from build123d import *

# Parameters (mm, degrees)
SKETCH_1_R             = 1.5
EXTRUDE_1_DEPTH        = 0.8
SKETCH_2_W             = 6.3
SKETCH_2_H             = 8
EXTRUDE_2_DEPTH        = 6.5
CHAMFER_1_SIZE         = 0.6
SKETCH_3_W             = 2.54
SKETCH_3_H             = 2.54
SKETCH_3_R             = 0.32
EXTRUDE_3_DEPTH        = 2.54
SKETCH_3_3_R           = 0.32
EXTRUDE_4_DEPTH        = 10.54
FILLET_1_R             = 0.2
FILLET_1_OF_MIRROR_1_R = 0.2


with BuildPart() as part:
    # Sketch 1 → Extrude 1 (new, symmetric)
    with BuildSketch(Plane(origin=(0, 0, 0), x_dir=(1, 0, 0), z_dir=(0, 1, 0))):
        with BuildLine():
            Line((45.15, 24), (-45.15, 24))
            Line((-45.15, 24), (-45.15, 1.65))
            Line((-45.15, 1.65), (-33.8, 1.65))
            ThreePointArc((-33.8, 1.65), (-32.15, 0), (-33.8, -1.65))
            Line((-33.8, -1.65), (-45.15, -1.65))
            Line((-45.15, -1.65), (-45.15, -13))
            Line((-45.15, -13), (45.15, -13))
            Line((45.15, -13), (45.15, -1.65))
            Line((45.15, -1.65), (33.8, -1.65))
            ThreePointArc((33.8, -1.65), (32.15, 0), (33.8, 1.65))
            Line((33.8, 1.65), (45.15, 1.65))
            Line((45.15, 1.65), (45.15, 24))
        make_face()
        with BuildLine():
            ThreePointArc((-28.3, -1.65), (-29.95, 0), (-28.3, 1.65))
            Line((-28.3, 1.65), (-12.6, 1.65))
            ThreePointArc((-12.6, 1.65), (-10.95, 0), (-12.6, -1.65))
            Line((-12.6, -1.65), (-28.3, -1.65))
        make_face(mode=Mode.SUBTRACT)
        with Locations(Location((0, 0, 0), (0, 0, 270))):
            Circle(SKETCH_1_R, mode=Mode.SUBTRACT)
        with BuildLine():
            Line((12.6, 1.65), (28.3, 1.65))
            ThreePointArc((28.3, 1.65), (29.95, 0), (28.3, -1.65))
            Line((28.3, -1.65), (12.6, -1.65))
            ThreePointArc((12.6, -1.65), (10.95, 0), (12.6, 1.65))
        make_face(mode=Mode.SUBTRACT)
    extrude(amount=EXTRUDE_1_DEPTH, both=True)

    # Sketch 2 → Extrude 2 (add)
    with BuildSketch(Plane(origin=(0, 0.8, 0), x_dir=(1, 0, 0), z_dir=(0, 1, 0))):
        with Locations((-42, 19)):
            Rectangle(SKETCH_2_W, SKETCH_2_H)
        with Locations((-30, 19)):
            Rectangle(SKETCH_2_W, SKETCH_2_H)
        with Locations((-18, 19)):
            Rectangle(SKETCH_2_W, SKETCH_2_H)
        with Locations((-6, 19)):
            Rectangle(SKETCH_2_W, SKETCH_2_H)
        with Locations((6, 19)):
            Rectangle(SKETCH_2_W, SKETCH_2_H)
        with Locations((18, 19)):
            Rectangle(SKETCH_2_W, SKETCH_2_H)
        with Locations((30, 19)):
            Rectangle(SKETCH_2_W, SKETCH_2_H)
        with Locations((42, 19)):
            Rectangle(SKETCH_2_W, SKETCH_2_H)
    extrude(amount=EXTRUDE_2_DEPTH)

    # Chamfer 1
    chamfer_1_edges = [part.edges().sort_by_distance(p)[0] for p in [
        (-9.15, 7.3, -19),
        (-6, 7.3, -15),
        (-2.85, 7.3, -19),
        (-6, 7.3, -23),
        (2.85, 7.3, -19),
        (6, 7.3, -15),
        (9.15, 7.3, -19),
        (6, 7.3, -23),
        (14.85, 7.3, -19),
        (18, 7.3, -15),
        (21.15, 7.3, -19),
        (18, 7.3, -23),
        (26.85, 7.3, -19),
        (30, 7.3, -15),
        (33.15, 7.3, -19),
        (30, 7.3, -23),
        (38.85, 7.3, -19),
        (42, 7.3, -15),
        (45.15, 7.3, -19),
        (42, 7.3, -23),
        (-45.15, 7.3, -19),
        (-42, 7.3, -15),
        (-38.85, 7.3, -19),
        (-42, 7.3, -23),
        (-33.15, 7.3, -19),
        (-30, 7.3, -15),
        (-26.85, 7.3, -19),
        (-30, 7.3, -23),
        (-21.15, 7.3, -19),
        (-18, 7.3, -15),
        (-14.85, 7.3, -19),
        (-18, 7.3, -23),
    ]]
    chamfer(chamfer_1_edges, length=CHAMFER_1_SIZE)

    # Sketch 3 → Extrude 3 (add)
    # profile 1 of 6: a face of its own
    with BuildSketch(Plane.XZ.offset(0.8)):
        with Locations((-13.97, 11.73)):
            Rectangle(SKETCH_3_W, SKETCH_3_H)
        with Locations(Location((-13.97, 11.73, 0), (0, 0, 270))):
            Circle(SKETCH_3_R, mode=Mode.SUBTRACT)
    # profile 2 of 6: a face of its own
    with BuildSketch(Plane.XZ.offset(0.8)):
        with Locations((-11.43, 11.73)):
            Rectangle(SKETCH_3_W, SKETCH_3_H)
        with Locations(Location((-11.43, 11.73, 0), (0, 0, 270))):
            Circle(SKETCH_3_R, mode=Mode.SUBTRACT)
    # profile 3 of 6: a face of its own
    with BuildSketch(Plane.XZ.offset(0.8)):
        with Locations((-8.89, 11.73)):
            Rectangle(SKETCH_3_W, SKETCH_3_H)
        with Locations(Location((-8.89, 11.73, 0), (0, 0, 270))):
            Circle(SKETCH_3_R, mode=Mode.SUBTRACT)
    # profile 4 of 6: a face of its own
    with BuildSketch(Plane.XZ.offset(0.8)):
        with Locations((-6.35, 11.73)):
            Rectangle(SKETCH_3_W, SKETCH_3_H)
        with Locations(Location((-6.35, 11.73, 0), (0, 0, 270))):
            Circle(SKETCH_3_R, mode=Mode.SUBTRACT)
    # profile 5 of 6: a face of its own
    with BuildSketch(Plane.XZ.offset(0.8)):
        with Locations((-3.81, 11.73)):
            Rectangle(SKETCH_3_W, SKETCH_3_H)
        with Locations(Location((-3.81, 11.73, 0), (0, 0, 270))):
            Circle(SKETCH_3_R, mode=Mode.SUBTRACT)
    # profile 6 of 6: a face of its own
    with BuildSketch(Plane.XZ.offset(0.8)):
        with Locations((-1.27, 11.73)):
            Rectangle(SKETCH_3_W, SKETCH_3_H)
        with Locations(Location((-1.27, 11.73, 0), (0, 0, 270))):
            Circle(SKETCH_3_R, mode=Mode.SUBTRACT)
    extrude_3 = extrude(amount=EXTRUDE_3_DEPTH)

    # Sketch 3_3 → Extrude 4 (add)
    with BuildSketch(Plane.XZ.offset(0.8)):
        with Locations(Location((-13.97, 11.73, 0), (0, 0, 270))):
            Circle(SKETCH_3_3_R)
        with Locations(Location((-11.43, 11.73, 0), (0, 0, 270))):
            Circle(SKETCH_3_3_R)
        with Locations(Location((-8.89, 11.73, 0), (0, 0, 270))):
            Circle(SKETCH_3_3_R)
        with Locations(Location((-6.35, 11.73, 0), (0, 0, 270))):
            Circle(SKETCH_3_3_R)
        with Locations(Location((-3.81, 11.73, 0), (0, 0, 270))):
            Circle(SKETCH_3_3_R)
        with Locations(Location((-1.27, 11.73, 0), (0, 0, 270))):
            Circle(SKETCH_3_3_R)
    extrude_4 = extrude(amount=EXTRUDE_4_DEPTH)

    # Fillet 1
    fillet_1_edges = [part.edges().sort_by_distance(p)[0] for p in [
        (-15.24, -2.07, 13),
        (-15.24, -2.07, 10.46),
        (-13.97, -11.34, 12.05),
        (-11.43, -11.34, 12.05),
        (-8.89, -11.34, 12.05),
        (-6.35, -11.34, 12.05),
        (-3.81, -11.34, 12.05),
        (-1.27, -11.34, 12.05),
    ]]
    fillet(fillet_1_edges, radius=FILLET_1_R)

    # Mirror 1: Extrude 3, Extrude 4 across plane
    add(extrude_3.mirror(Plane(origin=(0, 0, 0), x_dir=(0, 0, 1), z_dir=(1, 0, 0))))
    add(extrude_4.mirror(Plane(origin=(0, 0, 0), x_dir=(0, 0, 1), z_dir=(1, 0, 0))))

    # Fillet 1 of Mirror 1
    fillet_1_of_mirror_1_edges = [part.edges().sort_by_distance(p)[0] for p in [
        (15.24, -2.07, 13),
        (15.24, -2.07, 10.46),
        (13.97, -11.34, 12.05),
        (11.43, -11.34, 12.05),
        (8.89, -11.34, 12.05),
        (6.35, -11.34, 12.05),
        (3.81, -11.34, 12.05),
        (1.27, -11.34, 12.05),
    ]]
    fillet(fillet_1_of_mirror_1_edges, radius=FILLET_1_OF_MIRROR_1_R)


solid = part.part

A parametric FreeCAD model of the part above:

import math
import FreeCAD as App
import Part
import Sketcher

V = App.Vector
Q = App.Units.Quantity


def edges_at(feature, points):
    """Names of the edges that pass closest to the given points."""
    edges = feature.Shape.Edges
    near = lambda p: min(range(len(edges)), key=lambda i: edges[i].distToShape(Part.Vertex(*p))[0])
    return sorted({f"Edge{near(p) + 1}" for p in points})

doc = App.newDocument("Part")
body = doc.addObject("PartDesign::Body", "Body")

sketch1 = body.newObject("Sketcher::SketchObject", "Sketch")
sketch1.AttachmentSupport = (doc.getObject("XZ_Plane"), [""])
sketch1.MapMode = "FlatFace"
sketch1.addGeometry(Part.LineSegment(V(45.15, -24, 0), V(-45.15, -24, 0)), False)
sketch1.addGeometry(Part.LineSegment(V(-45.15, -24, 0), V(-45.15, -1.65, 0)), False)
sketch1.addGeometry(Part.LineSegment(V(-45.15, -1.65, 0), V(-33.8, -1.65, 0)), False)
sketch1.addGeometry(Part.ArcOfCircle(Part.Circle(V(-33.8, 0, 0), V(0, 0, 1), 1.65), math.radians(-90), math.radians(90)), False)
sketch1.addGeometry(Part.LineSegment(V(-33.8, 1.65, 0), V(-45.15, 1.65, 0)), False)
sketch1.addGeometry(Part.LineSegment(V(-45.15, 1.65, 0), V(-45.15, 13, 0)), False)
sketch1.addGeometry(Part.LineSegment(V(-45.15, 13, 0), V(45.15, 13, 0)), False)
sketch1.addGeometry(Part.LineSegment(V(45.15, 13, 0), V(45.15, 1.65, 0)), False)
sketch1.addGeometry(Part.LineSegment(V(45.15, 1.65, 0), V(33.8, 1.65, 0)), False)
sketch1.addGeometry(Part.ArcOfCircle(Part.Circle(V(33.8, 0, 0), V(0, 0, 1), 1.65), math.radians(90), math.radians(270)), False)
sketch1.addGeometry(Part.LineSegment(V(33.8, -1.65, 0), V(45.15, -1.65, 0)), False)
sketch1.addGeometry(Part.LineSegment(V(45.15, -1.65, 0), V(45.15, -24, 0)), False)
sketch1.addGeometry(Part.LineSegment(V(-12.6, 1.65, 0), V(-28.3, 1.65, 0)), False)
sketch1.addGeometry(Part.ArcOfCircle(Part.Circle(V(-28.3, 0, 0), V(0, 0, 1), 1.65), math.radians(90), math.radians(270)), False)
sketch1.addGeometry(Part.LineSegment(V(-28.3, -1.65, 0), V(-12.6, -1.65, 0)), False)
sketch1.addGeometry(Part.ArcOfCircle(Part.Circle(V(-12.6, 0, 0), V(0, 0, 1), 1.65), math.radians(-90), math.radians(90)), False)
sketch1.addGeometry(Part.Circle(V(0, 0, 0), V(0, 0, 1), 1.5), False)
sketch1.addGeometry(Part.ArcOfCircle(Part.Circle(V(12.6, 0, 0), V(0, 0, 1), 1.65), math.radians(90), math.radians(270)), False)
sketch1.addGeometry(Part.LineSegment(V(12.6, -1.65, 0), V(28.3, -1.65, 0)), False)
sketch1.addGeometry(Part.ArcOfCircle(Part.Circle(V(28.3, 0, 0), V(0, 0, 1), 1.65), math.radians(-90), math.radians(90)), False)
sketch1.addGeometry(Part.LineSegment(V(28.3, 1.65, 0), V(12.6, 1.65, 0)), False)
sketch1.addConstraint(Sketcher.Constraint("Coincident", 0, 2, 1, 1))
sketch1.addConstraint(Sketcher.Constraint("Coincident", 1, 2, 2, 1))
sketch1.addConstraint(Sketcher.Constraint("Tangent", 2, 2, 3, 1))
sketch1.addConstraint(Sketcher.Constraint("Tangent", 3, 2, 4, 1))
sketch1.addConstraint(Sketcher.Constraint("Coincident", 4, 2, 5, 1))
sketch1.addConstraint(Sketcher.Constraint("Coincident", 5, 2, 6, 1))
sketch1.addConstraint(Sketcher.Constraint("Coincident", 6, 2, 7, 1))
sketch1.addConstraint(Sketcher.Constraint("Coincident", 7, 2, 8, 1))
sketch1.addConstraint(Sketcher.Constraint("Tangent", 8, 2, 9, 1))
sketch1.addConstraint(Sketcher.Constraint("Tangent", 9, 2, 10, 1))
sketch1.addConstraint(Sketcher.Constraint("Coincident", 10, 2, 11, 1))
sketch1.addConstraint(Sketcher.Constraint("Coincident", 11, 2, 0, 1))
sketch1.addConstraint(Sketcher.Constraint("Tangent", 12, 2, 13, 1))
sketch1.addConstraint(Sketcher.Constraint("Tangent", 13, 2, 14, 1))
sketch1.addConstraint(Sketcher.Constraint("Tangent", 14, 2, 15, 1))
sketch1.addConstraint(Sketcher.Constraint("Tangent", 15, 2, 12, 1))
sketch1.addConstraint(Sketcher.Constraint("Tangent", 17, 2, 18, 1))
sketch1.addConstraint(Sketcher.Constraint("Tangent", 18, 2, 19, 1))
sketch1.addConstraint(Sketcher.Constraint("Tangent", 19, 2, 20, 1))
sketch1.addConstraint(Sketcher.Constraint("Tangent", 20, 2, 17, 1))
sketch1.addConstraint(Sketcher.Constraint("Horizontal", 0))
sketch1.addConstraint(Sketcher.Constraint("Vertical", 1))
sketch1.addConstraint(Sketcher.Constraint("Horizontal", 2))
sketch1.addConstraint(Sketcher.Constraint("Horizontal", 4))
sketch1.addConstraint(Sketcher.Constraint("Vertical", 5))
sketch1.addConstraint(Sketcher.Constraint("Horizontal", 6))
sketch1.addConstraint(Sketcher.Constraint("Vertical", 7))
sketch1.addConstraint(Sketcher.Constraint("Horizontal", 8))
sketch1.addConstraint(Sketcher.Constraint("Horizontal", 10))
sketch1.addConstraint(Sketcher.Constraint("Vertical", 11))
sketch1.addConstraint(Sketcher.Constraint("Horizontal", 12))
sketch1.addConstraint(Sketcher.Constraint("Horizontal", 14))
sketch1.addConstraint(Sketcher.Constraint("Horizontal", 18))
sketch1.addConstraint(Sketcher.Constraint("Horizontal", 20))
sketch1.addConstraint(Sketcher.Constraint("Coincident", 16, 3, -1, 1))
sketch1.addConstraint(Sketcher.Constraint("Equal", 3, 9))
sketch1.addConstraint(Sketcher.Constraint("Equal", 9, 13))
sketch1.addConstraint(Sketcher.Constraint("Equal", 15, 17))
sketch1.addConstraint(Sketcher.Constraint("Symmetric", 3, 3, 9, 3, -1, 1))
sketch1.addConstraint(Sketcher.Constraint("Symmetric", 15, 3, 17, 3, -1, 1))
sketch1.addConstraint(Sketcher.Constraint("Symmetric", 13, 3, 19, 3, -2))
sketch1.addConstraint(Sketcher.Constraint("Symmetric", 4, 2, 7, 2, -2))
sketch1.addConstraint(Sketcher.Constraint("Vertical", 1, 2, 4, 2))
sketch1.addConstraint(Sketcher.Constraint("Vertical", 7, 2, 10, 2))
sketch1.addConstraint(Sketcher.Constraint("Equal", 10, 5))
sketch1.addConstraint(Sketcher.Constraint("Diameter", 16, Q("3 mm")))
sketch1.addConstraint(Sketcher.Constraint("Radius", 3, Q("1.65 mm")))
sketch1.addConstraint(Sketcher.Constraint("DistanceX", 0, 2, 0, 1, Q("90.3 mm")))
sketch1.addConstraint(Sketcher.Constraint("DistanceX", 12, 2, 12, 1, Q("15.7 mm")))
sketch1.addConstraint(Sketcher.Constraint("DistanceY", 0, 2, -1, 1, Q("24 mm")))
sketch1.addConstraint(Sketcher.Constraint("DistanceY", -1, 1, 5, 2, Q("13 mm")))
sketch1.addConstraint(Sketcher.Constraint("DistanceX", 13, 3, -1, 1, Q("28.3 mm")))
pad1 = body.newObject("PartDesign::Pad", "Pad")
pad1.Profile = sketch1
pad1.Length = 1.6
pad1.Midplane = True

sketch2 = body.newObject("Sketcher::SketchObject", "Sketch001")
sketch2.AttachmentSupport = (doc.getObject("XZ_Plane"), [""])
sketch2.MapMode = "FlatFace"
sketch2.AttachmentOffset = App.Placement(V(0, 0, -0.8), App.Rotation())
sketch2.addGeometry(Part.LineSegment(V(-45.15, -23, 0), V(-45.15, -15, 0)), False)
sketch2.addGeometry(Part.LineSegment(V(-45.15, -15, 0), V(-38.85, -15, 0)), False)
sketch2.addGeometry(Part.LineSegment(V(-38.85, -15, 0), V(-38.85, -23, 0)), False)
sketch2.addGeometry(Part.LineSegment(V(-38.85, -23, 0), V(-45.15, -23, 0)), False)
sketch2.addGeometry(Part.LineSegment(V(-33.15, -23, 0), V(-33.15, -15, 0)), False)
sketch2.addGeometry(Part.LineSegment(V(-33.15, -15, 0), V(-26.85, -15, 0)), False)
sketch2.addGeometry(Part.LineSegment(V(-26.85, -15, 0), V(-26.85, -23, 0)), False)
sketch2.addGeometry(Part.LineSegment(V(-26.85, -23, 0), V(-33.15, -23, 0)), False)
sketch2.addGeometry(Part.LineSegment(V(-21.15, -23, 0), V(-21.15, -15, 0)), False)
sketch2.addGeometry(Part.LineSegment(V(-21.15, -15, 0), V(-14.85, -15, 0)), False)
sketch2.addGeometry(Part.LineSegment(V(-14.85, -15, 0), V(-14.85, -23, 0)), False)
sketch2.addGeometry(Part.LineSegment(V(-14.85, -23, 0), V(-21.15, -23, 0)), False)
sketch2.addGeometry(Part.LineSegment(V(-9.15, -23, 0), V(-9.15, -15, 0)), False)
sketch2.addGeometry(Part.LineSegment(V(-9.15, -15, 0), V(-2.85, -15, 0)), False)
sketch2.addGeometry(Part.LineSegment(V(-2.85, -15, 0), V(-2.85, -23, 0)), False)
sketch2.addGeometry(Part.LineSegment(V(-2.85, -23, 0), V(-9.15, -23, 0)), False)
sketch2.addGeometry(Part.LineSegment(V(2.85, -23, 0), V(2.85, -15, 0)), False)
sketch2.addGeometry(Part.LineSegment(V(2.85, -15, 0), V(9.15, -15, 0)), False)
sketch2.addGeometry(Part.LineSegment(V(9.15, -15, 0), V(9.15, -23, 0)), False)
sketch2.addGeometry(Part.LineSegment(V(9.15, -23, 0), V(2.85, -23, 0)), False)
sketch2.addGeometry(Part.LineSegment(V(14.85, -23, 0), V(14.85, -15, 0)), False)
sketch2.addGeometry(Part.LineSegment(V(14.85, -15, 0), V(21.15, -15, 0)), False)
sketch2.addGeometry(Part.LineSegment(V(21.15, -15, 0), V(21.15, -23, 0)), False)
sketch2.addGeometry(Part.LineSegment(V(21.15, -23, 0), V(14.85, -23, 0)), False)
sketch2.addGeometry(Part.LineSegment(V(26.85, -23, 0), V(26.85, -15, 0)), False)
sketch2.addGeometry(Part.LineSegment(V(26.85, -15, 0), V(33.15, -15, 0)), False)
sketch2.addGeometry(Part.LineSegment(V(33.15, -15, 0), V(33.15, -23, 0)), False)
sketch2.addGeometry(Part.LineSegment(V(33.15, -23, 0), V(26.85, -23, 0)), False)
sketch2.addGeometry(Part.LineSegment(V(38.85, -23, 0), V(38.85, -15, 0)), False)
sketch2.addGeometry(Part.LineSegment(V(38.85, -15, 0), V(45.15, -15, 0)), False)
sketch2.addGeometry(Part.LineSegment(V(45.15, -15, 0), V(45.15, -23, 0)), False)
sketch2.addGeometry(Part.LineSegment(V(45.15, -23, 0), V(38.85, -23, 0)), False)
sketch2.addConstraint(Sketcher.Constraint("Coincident", 0, 2, 1, 1))
sketch2.addConstraint(Sketcher.Constraint("Coincident", 1, 2, 2, 1))
sketch2.addConstraint(Sketcher.Constraint("Coincident", 2, 2, 3, 1))
sketch2.addConstraint(Sketcher.Constraint("Coincident", 3, 2, 0, 1))
sketch2.addConstraint(Sketcher.Constraint("Coincident", 4, 2, 5, 1))
sketch2.addConstraint(Sketcher.Constraint("Coincident", 5, 2, 6, 1))
sketch2.addConstraint(Sketcher.Constraint("Coincident", 6, 2, 7, 1))
sketch2.addConstraint(Sketcher.Constraint("Coincident", 7, 2, 4, 1))
sketch2.addConstraint(Sketcher.Constraint("Coincident", 8, 2, 9, 1))
sketch2.addConstraint(Sketcher.Constraint("Coincident", 9, 2, 10, 1))
sketch2.addConstraint(Sketcher.Constraint("Coincident", 10, 2, 11, 1))
sketch2.addConstraint(Sketcher.Constraint("Coincident", 11, 2, 8, 1))
sketch2.addConstraint(Sketcher.Constraint("Coincident", 12, 2, 13, 1))
sketch2.addConstraint(Sketcher.Constraint("Coincident", 13, 2, 14, 1))
sketch2.addConstraint(Sketcher.Constraint("Coincident", 14, 2, 15, 1))
sketch2.addConstraint(Sketcher.Constraint("Coincident", 15, 2, 12, 1))
sketch2.addConstraint(Sketcher.Constraint("Coincident", 16, 2, 17, 1))
sketch2.addConstraint(Sketcher.Constraint("Coincident", 17, 2, 18, 1))
sketch2.addConstraint(Sketcher.Constraint("Coincident", 18, 2, 19, 1))
sketch2.addConstraint(Sketcher.Constraint("Coincident", 19, 2, 16, 1))
sketch2.addConstraint(Sketcher.Constraint("Coincident", 20, 2, 21, 1))
sketch2.addConstraint(Sketcher.Constraint("Coincident", 21, 2, 22, 1))
sketch2.addConstraint(Sketcher.Constraint("Coincident", 22, 2, 23, 1))
sketch2.addConstraint(Sketcher.Constraint("Coincident", 23, 2, 20, 1))
sketch2.addConstraint(Sketcher.Constraint("Coincident", 24, 2, 25, 1))
sketch2.addConstraint(Sketcher.Constraint("Coincident", 25, 2, 26, 1))
sketch2.addConstraint(Sketcher.Constraint("Coincident", 26, 2, 27, 1))
sketch2.addConstraint(Sketcher.Constraint("Coincident", 27, 2, 24, 1))
sketch2.addConstraint(Sketcher.Constraint("Coincident", 28, 2, 29, 1))
sketch2.addConstraint(Sketcher.Constraint("Coincident", 29, 2, 30, 1))
sketch2.addConstraint(Sketcher.Constraint("Coincident", 30, 2, 31, 1))
sketch2.addConstraint(Sketcher.Constraint("Coincident", 31, 2, 28, 1))
sketch2.addConstraint(Sketcher.Constraint("Vertical", 0))
sketch2.addConstraint(Sketcher.Constraint("Horizontal", 1))
sketch2.addConstraint(Sketcher.Constraint("Vertical", 2))
sketch2.addConstraint(Sketcher.Constraint("Horizontal", 3))
sketch2.addConstraint(Sketcher.Constraint("Vertical", 4))
sketch2.addConstraint(Sketcher.Constraint("Horizontal", 5))
sketch2.addConstraint(Sketcher.Constraint("Vertical", 6))
sketch2.addConstraint(Sketcher.Constraint("Horizontal", 7))
sketch2.addConstraint(Sketcher.Constraint("Vertical", 8))
sketch2.addConstraint(Sketcher.Constraint("Horizontal", 9))
sketch2.addConstraint(Sketcher.Constraint("Vertical", 10))
sketch2.addConstraint(Sketcher.Constraint("Horizontal", 11))
sketch2.addConstraint(Sketcher.Constraint("Vertical", 12))
sketch2.addConstraint(Sketcher.Constraint("Horizontal", 13))
sketch2.addConstraint(Sketcher.Constraint("Vertical", 14))
sketch2.addConstraint(Sketcher.Constraint("Horizontal", 15))
sketch2.addConstraint(Sketcher.Constraint("Vertical", 16))
sketch2.addConstraint(Sketcher.Constraint("Horizontal", 17))
sketch2.addConstraint(Sketcher.Constraint("Vertical", 18))
sketch2.addConstraint(Sketcher.Constraint("Horizontal", 19))
sketch2.addConstraint(Sketcher.Constraint("Vertical", 20))
sketch2.addConstraint(Sketcher.Constraint("Horizontal", 21))
sketch2.addConstraint(Sketcher.Constraint("Vertical", 22))
sketch2.addConstraint(Sketcher.Constraint("Horizontal", 23))
sketch2.addConstraint(Sketcher.Constraint("Vertical", 24))
sketch2.addConstraint(Sketcher.Constraint("Horizontal", 25))
sketch2.addConstraint(Sketcher.Constraint("Vertical", 26))
sketch2.addConstraint(Sketcher.Constraint("Horizontal", 27))
sketch2.addConstraint(Sketcher.Constraint("Vertical", 28))
sketch2.addConstraint(Sketcher.Constraint("Horizontal", 29))
sketch2.addConstraint(Sketcher.Constraint("Vertical", 30))
sketch2.addConstraint(Sketcher.Constraint("Horizontal", 31))
sketch2.addConstraint(Sketcher.Constraint("Symmetric", 13, 2, 16, 2, -2))
sketch2.addConstraint(Sketcher.Constraint("Symmetric", 15, 2, 18, 2, -2))
sketch2.addConstraint(Sketcher.Constraint("Symmetric", 9, 2, 20, 2, -2))
sketch2.addConstraint(Sketcher.Constraint("Symmetric", 11, 2, 22, 2, -2))
sketch2.addConstraint(Sketcher.Constraint("Symmetric", 5, 2, 24, 2, -2))
sketch2.addConstraint(Sketcher.Constraint("Symmetric", 7, 2, 26, 2, -2))
sketch2.addConstraint(Sketcher.Constraint("Symmetric", 1, 2, 28, 2, -2))
sketch2.addConstraint(Sketcher.Constraint("Symmetric", 3, 2, 30, 2, -2))
sketch2.addConstraint(Sketcher.Constraint("Horizontal", 1, 2, 4, 2))
sketch2.addConstraint(Sketcher.Constraint("Horizontal", 3, 2, 6, 2))
sketch2.addConstraint(Sketcher.Constraint("Horizontal", 5, 2, 8, 2))
sketch2.addConstraint(Sketcher.Constraint("Horizontal", 7, 2, 10, 2))
sketch2.addConstraint(Sketcher.Constraint("Horizontal", 9, 2, 12, 2))
sketch2.addConstraint(Sketcher.Constraint("Horizontal", 11, 2, 14, 2))
sketch2.addConstraint(Sketcher.Constraint("Equal", 3, 5))
sketch2.addConstraint(Sketcher.Constraint("Equal", 7, 9))
sketch2.addConstraint(Sketcher.Constraint("Equal", 11, 13))
sketch2.addConstraint(Sketcher.Constraint("DistanceY", 0, 1, 0, 2, Q("8 mm")))
sketch2.addConstraint(Sketcher.Constraint("DistanceX", 1, 1, 1, 2, Q("6.3 mm")))
sketch2.addConstraint(Sketcher.Constraint("DistanceY", 0, 2, -1, 1, Q("15 mm")))
sketch2.addConstraint(Sketcher.Constraint("DistanceX", 0, 2, 4, 2, Q("12 mm")))
sketch2.addConstraint(Sketcher.Constraint("DistanceX", 4, 2, 8, 2, Q("12 mm")))
sketch2.addConstraint(Sketcher.Constraint("DistanceX", 8, 2, 12, 2, Q("12 mm")))
sketch2.addConstraint(Sketcher.Constraint("DistanceX", 12, 2, 16, 2, Q("12 mm")))
pad2 = body.newObject("PartDesign::Pad", "Pad001")
pad2.Profile = sketch2
pad2.Length = 6.5
pad2.Reversed = True
doc.recompute()

chamfer = body.newObject("PartDesign::Chamfer", "Chamfer")
chamfer.Base = (pad2, edges_at(pad2, [
    (-9.15, 7.3, -19),
    (-6, 7.3, -15),
    (-2.85, 7.3, -19),
    (-6, 7.3, -23),
    (2.85, 7.3, -19),
    (6, 7.3, -15),
    (9.15, 7.3, -19),
    (6, 7.3, -23),
    (14.85, 7.3, -19),
    (18, 7.3, -15),
    (21.15, 7.3, -19),
    (18, 7.3, -23),
    (26.85, 7.3, -19),
    (30, 7.3, -15),
    (33.15, 7.3, -19),
    (30, 7.3, -23),
    (38.85, 7.3, -19),
    (42, 7.3, -15),
    (45.15, 7.3, -19),
    (42, 7.3, -23),
    (-45.15, 7.3, -19),
    (-42, 7.3, -15),
    (-38.85, 7.3, -19),
    (-42, 7.3, -23),
    (-33.15, 7.3, -19),
    (-30, 7.3, -15),
    (-26.85, 7.3, -19),
    (-30, 7.3, -23),
    (-21.15, 7.3, -19),
    (-18, 7.3, -15),
    (-14.85, 7.3, -19),
    (-18, 7.3, -23),
]))
chamfer.Size = 0.6

sketch3 = body.newObject("Sketcher::SketchObject", "Sketch002")
sketch3.AttachmentSupport = (doc.getObject("XZ_Plane"), [""])
sketch3.MapMode = "FlatFace"
sketch3.AttachmentOffset = App.Placement(V(0, 0, 0.8), App.Rotation())
sketch3.addGeometry(Part.LineSegment(V(-15.24, 13, 0), V(-15.24, 10.46, 0)), False)
sketch3.addGeometry(Part.LineSegment(V(-15.24, 10.46, 0), V(0, 10.46, 0)), False)
sketch3.addGeometry(Part.LineSegment(V(0, 10.46, 0), V(0, 13, 0)), False)
sketch3.addGeometry(Part.LineSegment(V(0, 13, 0), V(-15.24, 13, 0)), False)
sketch3.addGeometry(Part.Circle(V(-13.97, 11.73, 0), V(0, 0, 1), 0.32), False)
sketch3.addGeometry(Part.Circle(V(-11.43, 11.73, 0), V(0, 0, 1), 0.32), False)
sketch3.addGeometry(Part.Circle(V(-8.89, 11.73, 0), V(0, 0, 1), 0.32), False)
sketch3.addGeometry(Part.Circle(V(-6.35, 11.73, 0), V(0, 0, 1), 0.32), False)
sketch3.addGeometry(Part.Circle(V(-3.81, 11.73, 0), V(0, 0, 1), 0.32), False)
sketch3.addGeometry(Part.Circle(V(-1.27, 11.73, 0), V(0, 0, 1), 0.32), False)
sketch3.addConstraint(Sketcher.Constraint("Coincident", 0, 2, 1, 1))
sketch3.addConstraint(Sketcher.Constraint("Coincident", 1, 2, 2, 1))
sketch3.addConstraint(Sketcher.Constraint("Coincident", 2, 2, 3, 1))
sketch3.addConstraint(Sketcher.Constraint("Coincident", 3, 2, 0, 1))
sketch3.addConstraint(Sketcher.Constraint("Vertical", 0))
sketch3.addConstraint(Sketcher.Constraint("Horizontal", 1))
sketch3.addConstraint(Sketcher.Constraint("Vertical", 2))
sketch3.addConstraint(Sketcher.Constraint("Horizontal", 3))
sketch3.addConstraint(Sketcher.Constraint("Equal", 4, 5))
sketch3.addConstraint(Sketcher.Constraint("Equal", 5, 6))
sketch3.addConstraint(Sketcher.Constraint("Equal", 6, 7))
sketch3.addConstraint(Sketcher.Constraint("Equal", 7, 8))
sketch3.addConstraint(Sketcher.Constraint("Equal", 8, 9))
sketch3.addConstraint(Sketcher.Constraint("PointOnObject", 1, 2, -2))
sketch3.addConstraint(Sketcher.Constraint("Horizontal", 4, 3, 5, 3))
sketch3.addConstraint(Sketcher.Constraint("Horizontal", 5, 3, 6, 3))
sketch3.addConstraint(Sketcher.Constraint("Horizontal", 6, 3, 7, 3))
sketch3.addConstraint(Sketcher.Constraint("Horizontal", 7, 3, 8, 3))
sketch3.addConstraint(Sketcher.Constraint("Horizontal", 8, 3, 9, 3))
sketch3.addConstraint(Sketcher.Constraint("Diameter", 4, Q("0.64 mm")))
sketch3.addConstraint(Sketcher.Constraint("DistanceY", -1, 1, 2, 2, Q("13 mm")))
sketch3.addConstraint(Sketcher.Constraint("DistanceX", 1, 1, 1, 2, Q("15.24 mm")))
sketch3.addConstraint(Sketcher.Constraint("DistanceY", 0, 2, 0, 1, Q("2.54 mm")))
sketch3.addConstraint(Sketcher.Constraint("DistanceX", 4, 3, 9, 3, Q("12.7 mm")))
sketch3.addConstraint(Sketcher.Constraint("DistanceX", 4, 3, -1, 1, Q("13.97 mm")))
sketch3.addConstraint(Sketcher.Constraint("DistanceY", -1, 1, 4, 3, Q("11.73 mm")))
sketch3.addConstraint(Sketcher.Constraint("DistanceX", 5, 3, -1, 1, Q("11.43 mm")))
sketch3.addConstraint(Sketcher.Constraint("DistanceX", 6, 3, -1, 1, Q("8.89 mm")))
sketch3.addConstraint(Sketcher.Constraint("DistanceX", 7, 3, -1, 1, Q("6.35 mm")))
sketch3.addConstraint(Sketcher.Constraint("DistanceX", 8, 3, -1, 1, Q("3.81 mm")))
pad3 = body.newObject("PartDesign::Pad", "Pad002")
pad3.Profile = sketch3
pad3.Length = 2.54

sketch4 = body.newObject("Sketcher::SketchObject", "Sketch003")
sketch4.AttachmentSupport = (doc.getObject("XZ_Plane"), [""])
sketch4.MapMode = "FlatFace"
sketch4.AttachmentOffset = App.Placement(V(0, 0, 0.8), App.Rotation())
sketch4.addGeometry(Part.Circle(V(-13.97, 11.73, 0), V(0, 0, 1), 0.32), False)
sketch4.addGeometry(Part.Circle(V(-11.43, 11.73, 0), V(0, 0, 1), 0.32), False)
sketch4.addGeometry(Part.Circle(V(-8.89, 11.73, 0), V(0, 0, 1), 0.32), False)
sketch4.addGeometry(Part.Circle(V(-6.35, 11.73, 0), V(0, 0, 1), 0.32), False)
sketch4.addGeometry(Part.Circle(V(-3.81, 11.73, 0), V(0, 0, 1), 0.32), False)
sketch4.addGeometry(Part.Circle(V(-1.27, 11.73, 0), V(0, 0, 1), 0.32), False)
sketch4.addConstraint(Sketcher.Constraint("Equal", 0, 1))
sketch4.addConstraint(Sketcher.Constraint("Equal", 1, 2))
sketch4.addConstraint(Sketcher.Constraint("Equal", 2, 3))
sketch4.addConstraint(Sketcher.Constraint("Equal", 3, 4))
sketch4.addConstraint(Sketcher.Constraint("Equal", 4, 5))
sketch4.addConstraint(Sketcher.Constraint("Horizontal", 0, 3, 1, 3))
sketch4.addConstraint(Sketcher.Constraint("Horizontal", 1, 3, 2, 3))
sketch4.addConstraint(Sketcher.Constraint("Horizontal", 2, 3, 3, 3))
sketch4.addConstraint(Sketcher.Constraint("Horizontal", 3, 3, 4, 3))
sketch4.addConstraint(Sketcher.Constraint("Horizontal", 4, 3, 5, 3))
sketch4.addConstraint(Sketcher.Constraint("Diameter", 0, Q("0.64 mm")))
sketch4.addConstraint(Sketcher.Constraint("DistanceX", 0, 3, 5, 3, Q("12.7 mm")))
sketch4.addConstraint(Sketcher.Constraint("DistanceX", 0, 3, -1, 1, Q("13.97 mm")))
sketch4.addConstraint(Sketcher.Constraint("DistanceY", -1, 1, 0, 3, Q("11.73 mm")))
sketch4.addConstraint(Sketcher.Constraint("DistanceX", 1, 3, -1, 1, Q("11.43 mm")))
sketch4.addConstraint(Sketcher.Constraint("DistanceX", 2, 3, -1, 1, Q("8.89 mm")))
sketch4.addConstraint(Sketcher.Constraint("DistanceX", 3, 3, -1, 1, Q("6.35 mm")))
sketch4.addConstraint(Sketcher.Constraint("DistanceX", 4, 3, -1, 1, Q("3.81 mm")))
pad4 = body.newObject("PartDesign::Pad", "Pad003")
pad4.Profile = sketch4
pad4.Length = 10.54
doc.recompute()

fillet = body.newObject("PartDesign::Fillet", "Fillet")
fillet.Base = (pad4, edges_at(pad4, [
    (-15.24, -2.07, 13),
    (-15.24, -2.07, 10.46),
    (-13.97, -11.34, 12.05),
    (-11.43, -11.34, 12.05),
    (-8.89, -11.34, 12.05),
    (-6.35, -11.34, 12.05),
    (-3.81, -11.34, 12.05),
    (-1.27, -11.34, 12.05),
]))
fillet.Radius = 0.2
doc.recompute()

mirrored = body.newObject("PartDesign::Mirrored", "Mirrored")
mirrored.Originals = [pad3, pad4]
mirrored.MirrorPlane = (doc.getObject("YZ_Plane"), [""])
body.Tip = mirrored
doc.recompute()

fillet2 = body.newObject("PartDesign::Fillet", "Fillet001")
fillet2.Base = (mirrored, edges_at(mirrored, [
    (15.24, -2.07, 13),
    (15.24, -2.07, 10.46),
    (13.97, -11.34, 12.05),
    (11.43, -11.34, 12.05),
    (8.89, -11.34, 12.05),
    (6.35, -11.34, 12.05),
    (3.81, -11.34, 12.05),
    (1.27, -11.34, 12.05),
]))
fillet2.Radius = 0.2

doc.recompute()
